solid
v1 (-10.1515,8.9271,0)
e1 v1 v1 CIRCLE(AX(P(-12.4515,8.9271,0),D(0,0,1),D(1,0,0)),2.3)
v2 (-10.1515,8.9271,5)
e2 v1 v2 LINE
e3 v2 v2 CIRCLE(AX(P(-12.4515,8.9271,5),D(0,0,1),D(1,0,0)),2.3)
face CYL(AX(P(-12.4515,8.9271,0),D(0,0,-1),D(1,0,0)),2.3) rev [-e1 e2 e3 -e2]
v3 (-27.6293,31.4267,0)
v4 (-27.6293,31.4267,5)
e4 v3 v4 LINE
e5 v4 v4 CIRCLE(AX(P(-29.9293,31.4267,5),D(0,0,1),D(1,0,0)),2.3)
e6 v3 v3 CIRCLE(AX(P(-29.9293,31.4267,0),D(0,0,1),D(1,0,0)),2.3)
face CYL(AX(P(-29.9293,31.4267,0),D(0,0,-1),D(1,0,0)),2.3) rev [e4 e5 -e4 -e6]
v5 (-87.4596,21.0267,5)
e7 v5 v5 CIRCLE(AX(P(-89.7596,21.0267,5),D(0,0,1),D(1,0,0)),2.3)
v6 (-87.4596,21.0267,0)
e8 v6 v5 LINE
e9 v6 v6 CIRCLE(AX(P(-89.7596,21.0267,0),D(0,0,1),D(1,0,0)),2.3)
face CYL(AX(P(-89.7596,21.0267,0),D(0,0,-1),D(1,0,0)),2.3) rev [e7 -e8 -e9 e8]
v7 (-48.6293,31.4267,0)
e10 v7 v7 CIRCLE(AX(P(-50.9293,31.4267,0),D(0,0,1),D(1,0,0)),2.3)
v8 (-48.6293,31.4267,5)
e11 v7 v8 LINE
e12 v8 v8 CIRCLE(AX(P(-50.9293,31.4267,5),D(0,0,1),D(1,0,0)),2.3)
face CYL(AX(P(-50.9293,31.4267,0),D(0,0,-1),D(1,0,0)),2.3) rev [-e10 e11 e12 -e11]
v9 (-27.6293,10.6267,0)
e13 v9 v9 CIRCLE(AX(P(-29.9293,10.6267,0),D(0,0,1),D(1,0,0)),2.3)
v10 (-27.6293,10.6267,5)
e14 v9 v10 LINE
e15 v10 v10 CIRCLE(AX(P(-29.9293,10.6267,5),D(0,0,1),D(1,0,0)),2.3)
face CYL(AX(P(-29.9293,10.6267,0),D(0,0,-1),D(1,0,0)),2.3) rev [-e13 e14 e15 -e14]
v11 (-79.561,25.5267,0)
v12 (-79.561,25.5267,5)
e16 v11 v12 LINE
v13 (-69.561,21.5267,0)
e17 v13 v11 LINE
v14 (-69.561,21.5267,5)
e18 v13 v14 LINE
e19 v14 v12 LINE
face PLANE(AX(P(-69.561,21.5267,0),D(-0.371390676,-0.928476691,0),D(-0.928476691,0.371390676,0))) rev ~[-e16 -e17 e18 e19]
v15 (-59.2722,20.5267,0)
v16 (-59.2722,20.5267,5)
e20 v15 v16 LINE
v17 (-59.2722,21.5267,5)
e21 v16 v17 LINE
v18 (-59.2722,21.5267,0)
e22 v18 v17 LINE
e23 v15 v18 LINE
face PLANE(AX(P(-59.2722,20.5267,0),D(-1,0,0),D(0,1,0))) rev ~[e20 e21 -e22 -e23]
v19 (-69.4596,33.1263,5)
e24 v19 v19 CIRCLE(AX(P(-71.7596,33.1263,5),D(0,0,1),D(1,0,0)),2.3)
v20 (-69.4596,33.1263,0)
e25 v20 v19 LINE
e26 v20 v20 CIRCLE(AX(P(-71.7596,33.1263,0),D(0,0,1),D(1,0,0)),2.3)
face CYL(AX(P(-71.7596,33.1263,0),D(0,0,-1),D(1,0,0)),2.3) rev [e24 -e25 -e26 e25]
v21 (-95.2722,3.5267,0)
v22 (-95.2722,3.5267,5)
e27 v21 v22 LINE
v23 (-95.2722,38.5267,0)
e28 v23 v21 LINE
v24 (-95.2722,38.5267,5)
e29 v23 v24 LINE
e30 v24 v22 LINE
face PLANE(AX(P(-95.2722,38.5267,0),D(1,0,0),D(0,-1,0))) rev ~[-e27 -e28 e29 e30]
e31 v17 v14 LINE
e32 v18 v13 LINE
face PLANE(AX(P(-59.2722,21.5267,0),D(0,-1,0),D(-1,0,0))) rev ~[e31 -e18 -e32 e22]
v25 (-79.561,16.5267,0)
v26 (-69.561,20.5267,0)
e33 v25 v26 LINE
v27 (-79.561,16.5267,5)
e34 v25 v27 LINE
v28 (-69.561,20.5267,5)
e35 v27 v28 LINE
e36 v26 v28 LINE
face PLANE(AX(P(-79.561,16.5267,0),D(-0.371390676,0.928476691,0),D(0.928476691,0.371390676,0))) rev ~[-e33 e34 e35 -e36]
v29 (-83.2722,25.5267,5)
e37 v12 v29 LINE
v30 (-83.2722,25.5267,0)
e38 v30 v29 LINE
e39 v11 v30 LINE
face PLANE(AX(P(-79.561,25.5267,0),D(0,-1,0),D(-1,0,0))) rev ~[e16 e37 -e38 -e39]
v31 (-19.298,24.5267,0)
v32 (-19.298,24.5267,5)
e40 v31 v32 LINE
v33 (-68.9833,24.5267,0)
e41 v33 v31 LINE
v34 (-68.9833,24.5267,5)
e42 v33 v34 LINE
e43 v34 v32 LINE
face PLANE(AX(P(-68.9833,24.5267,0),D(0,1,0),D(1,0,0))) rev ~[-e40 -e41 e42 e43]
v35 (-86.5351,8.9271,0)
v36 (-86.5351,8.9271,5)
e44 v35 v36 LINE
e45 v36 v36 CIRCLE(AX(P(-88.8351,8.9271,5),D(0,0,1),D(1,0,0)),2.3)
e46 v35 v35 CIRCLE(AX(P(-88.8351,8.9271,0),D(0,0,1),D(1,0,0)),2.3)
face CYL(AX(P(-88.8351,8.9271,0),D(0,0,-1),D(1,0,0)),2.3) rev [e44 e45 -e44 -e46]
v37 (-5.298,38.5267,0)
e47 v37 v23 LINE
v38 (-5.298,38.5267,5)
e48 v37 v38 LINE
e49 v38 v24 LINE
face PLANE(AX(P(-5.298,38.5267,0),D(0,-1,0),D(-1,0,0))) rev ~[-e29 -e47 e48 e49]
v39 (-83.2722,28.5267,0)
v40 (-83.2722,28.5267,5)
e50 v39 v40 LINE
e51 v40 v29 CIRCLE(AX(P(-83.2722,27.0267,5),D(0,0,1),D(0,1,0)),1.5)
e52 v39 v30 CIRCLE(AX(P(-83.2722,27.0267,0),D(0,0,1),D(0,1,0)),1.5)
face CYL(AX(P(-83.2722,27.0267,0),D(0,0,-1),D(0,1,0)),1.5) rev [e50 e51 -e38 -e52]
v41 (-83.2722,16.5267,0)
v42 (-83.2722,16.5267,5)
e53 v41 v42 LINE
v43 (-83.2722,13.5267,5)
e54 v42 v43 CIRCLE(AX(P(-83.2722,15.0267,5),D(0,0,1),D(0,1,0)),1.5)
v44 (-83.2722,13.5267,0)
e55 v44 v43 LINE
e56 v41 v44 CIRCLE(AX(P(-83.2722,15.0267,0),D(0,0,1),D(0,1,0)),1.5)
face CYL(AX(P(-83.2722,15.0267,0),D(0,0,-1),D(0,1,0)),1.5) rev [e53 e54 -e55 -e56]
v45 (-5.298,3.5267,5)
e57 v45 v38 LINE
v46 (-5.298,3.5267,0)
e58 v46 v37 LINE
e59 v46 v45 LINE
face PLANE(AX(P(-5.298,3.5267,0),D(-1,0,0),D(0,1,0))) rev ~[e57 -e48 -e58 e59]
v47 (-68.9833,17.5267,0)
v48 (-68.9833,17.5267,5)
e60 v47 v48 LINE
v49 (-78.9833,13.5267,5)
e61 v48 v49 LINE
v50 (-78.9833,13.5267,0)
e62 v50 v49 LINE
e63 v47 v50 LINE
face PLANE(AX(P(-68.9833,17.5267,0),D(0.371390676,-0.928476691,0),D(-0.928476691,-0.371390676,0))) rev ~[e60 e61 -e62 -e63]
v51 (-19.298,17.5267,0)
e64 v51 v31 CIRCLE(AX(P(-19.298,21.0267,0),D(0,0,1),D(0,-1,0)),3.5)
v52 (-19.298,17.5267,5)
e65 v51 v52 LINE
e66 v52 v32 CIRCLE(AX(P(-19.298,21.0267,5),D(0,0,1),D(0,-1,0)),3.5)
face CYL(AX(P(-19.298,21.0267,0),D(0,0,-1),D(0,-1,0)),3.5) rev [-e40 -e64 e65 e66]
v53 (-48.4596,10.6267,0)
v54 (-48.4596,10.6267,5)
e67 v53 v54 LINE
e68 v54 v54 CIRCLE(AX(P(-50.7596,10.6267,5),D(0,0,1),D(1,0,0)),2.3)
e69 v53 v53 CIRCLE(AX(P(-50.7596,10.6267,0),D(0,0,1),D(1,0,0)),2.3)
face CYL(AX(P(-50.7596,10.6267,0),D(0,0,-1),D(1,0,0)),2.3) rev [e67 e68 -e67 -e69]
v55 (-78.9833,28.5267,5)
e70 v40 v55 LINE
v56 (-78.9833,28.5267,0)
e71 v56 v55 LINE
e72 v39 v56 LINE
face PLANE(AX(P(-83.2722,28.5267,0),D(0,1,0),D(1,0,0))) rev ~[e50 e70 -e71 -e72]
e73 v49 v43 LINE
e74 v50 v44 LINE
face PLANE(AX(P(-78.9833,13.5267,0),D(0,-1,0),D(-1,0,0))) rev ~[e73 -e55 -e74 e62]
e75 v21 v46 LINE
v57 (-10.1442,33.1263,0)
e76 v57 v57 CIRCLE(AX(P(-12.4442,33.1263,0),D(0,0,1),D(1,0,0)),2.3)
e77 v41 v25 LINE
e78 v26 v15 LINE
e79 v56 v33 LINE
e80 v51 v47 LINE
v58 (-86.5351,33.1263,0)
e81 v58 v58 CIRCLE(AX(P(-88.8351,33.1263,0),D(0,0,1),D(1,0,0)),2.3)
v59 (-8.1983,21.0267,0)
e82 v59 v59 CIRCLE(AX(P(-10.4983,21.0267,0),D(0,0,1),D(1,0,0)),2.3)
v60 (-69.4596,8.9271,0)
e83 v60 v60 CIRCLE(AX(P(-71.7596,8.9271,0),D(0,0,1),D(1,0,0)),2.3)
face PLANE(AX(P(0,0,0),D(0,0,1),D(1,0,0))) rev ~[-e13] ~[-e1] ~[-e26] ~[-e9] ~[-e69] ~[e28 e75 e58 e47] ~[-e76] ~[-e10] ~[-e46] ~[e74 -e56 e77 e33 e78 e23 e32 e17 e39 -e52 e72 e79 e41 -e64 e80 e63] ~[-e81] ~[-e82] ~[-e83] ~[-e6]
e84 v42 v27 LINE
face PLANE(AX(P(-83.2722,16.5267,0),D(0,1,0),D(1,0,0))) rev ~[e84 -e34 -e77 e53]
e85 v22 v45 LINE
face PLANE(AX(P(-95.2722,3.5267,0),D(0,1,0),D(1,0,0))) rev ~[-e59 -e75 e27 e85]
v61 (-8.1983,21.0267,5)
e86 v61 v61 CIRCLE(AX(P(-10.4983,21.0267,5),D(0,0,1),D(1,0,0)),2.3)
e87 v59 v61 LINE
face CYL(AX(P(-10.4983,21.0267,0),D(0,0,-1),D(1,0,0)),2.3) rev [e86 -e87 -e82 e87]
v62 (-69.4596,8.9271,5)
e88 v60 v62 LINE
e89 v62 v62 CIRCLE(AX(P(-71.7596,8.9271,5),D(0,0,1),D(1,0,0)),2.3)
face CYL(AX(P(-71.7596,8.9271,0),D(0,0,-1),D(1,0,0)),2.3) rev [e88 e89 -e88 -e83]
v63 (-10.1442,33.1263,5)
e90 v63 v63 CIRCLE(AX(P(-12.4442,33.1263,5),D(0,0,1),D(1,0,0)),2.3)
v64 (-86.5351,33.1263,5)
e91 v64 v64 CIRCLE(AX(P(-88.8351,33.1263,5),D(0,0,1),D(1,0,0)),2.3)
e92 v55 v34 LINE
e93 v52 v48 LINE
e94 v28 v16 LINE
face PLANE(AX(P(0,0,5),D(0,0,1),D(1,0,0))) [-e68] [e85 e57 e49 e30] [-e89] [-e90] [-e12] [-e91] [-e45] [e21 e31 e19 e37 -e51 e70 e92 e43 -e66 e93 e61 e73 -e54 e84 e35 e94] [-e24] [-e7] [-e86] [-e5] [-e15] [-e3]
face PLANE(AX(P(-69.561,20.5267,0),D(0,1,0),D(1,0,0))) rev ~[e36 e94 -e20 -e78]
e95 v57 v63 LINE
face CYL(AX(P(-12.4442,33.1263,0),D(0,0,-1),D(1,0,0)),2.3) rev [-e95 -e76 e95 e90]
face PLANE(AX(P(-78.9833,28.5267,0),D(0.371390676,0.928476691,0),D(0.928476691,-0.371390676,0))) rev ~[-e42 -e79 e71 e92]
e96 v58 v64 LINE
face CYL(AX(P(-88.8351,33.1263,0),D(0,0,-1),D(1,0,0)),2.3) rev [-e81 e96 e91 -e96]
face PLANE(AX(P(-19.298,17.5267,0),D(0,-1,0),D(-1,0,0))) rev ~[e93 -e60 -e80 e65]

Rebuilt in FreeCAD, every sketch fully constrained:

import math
import FreeCAD as App
import Part
import Sketcher

V = App.Vector
Q = App.Units.Quantity

doc = App.newDocument("Part")
body = doc.addObject("PartDesign::Body", "Body")

sketch1 = body.newObject("Sketcher::SketchObject", "Sketch")
sketch1.AttachmentSupport = (doc.getObject("XY_Plane"), [""])
sketch1.MapMode = "FlatFace"
sketch1.addGeometry(Part.LineSegment(V(-5.298, 3.5267, 0), V(-5.298, 38.5267, 0)), False)
sketch1.addGeometry(Part.LineSegment(V(-5.298, 38.5267, 0), V(-95.2722, 38.5267, 0)), False)
sketch1.addGeometry(Part.LineSegment(V(-95.2722, 38.5267, 0), V(-95.2722, 3.5267, 0)), False)
sketch1.addGeometry(Part.LineSegment(V(-95.2722, 3.5267, 0), V(-5.298, 3.5267, 0)), False)
sketch1.addGeometry(Part.Circle(V(-88.8351, 8.9271, 0), V(0, 0, 1), 2.3), False)
sketch1.addGeometry(Part.Circle(V(-71.7596, 8.9271, 0), V(0, 0, 1), 2.3), False)
sketch1.addGeometry(Part.Circle(V(-50.7596, 10.6267, 0), V(0, 0, 1), 2.3), False)
sketch1.addGeometry(Part.Circle(V(-29.9293, 10.6267, 0), V(0, 0, 1), 2.3), False)
sketch1.addGeometry(Part.Circle(V(-12.4515, 8.9271, 0), V(0, 0, 1), 2.3), False)
sketch1.addGeometry(Part.Circle(V(-89.7596, 21.0267, 0), V(0, 0, 1), 2.3), False)
sketch1.addGeometry(Part.Circle(V(-88.8351, 33.1263, 0), V(0, 0, 1), 2.3), False)
sketch1.addGeometry(Part.Circle(V(-71.7596, 33.1263, 0), V(0, 0, 1), 2.3), False)
sketch1.addGeometry(Part.Circle(V(-50.9293, 31.4267, 0), V(0, 0, 1), 2.3), False)
sketch1.addGeometry(Part.LineSegment(V(-83.2722, 28.5267, 0), V(-78.9833, 28.5267, 0)), False)
sketch1.addGeometry(Part.LineSegment(V(-78.9833, 28.5267, 0), V(-68.9833, 24.5267, 0)), False)
sketch1.addGeometry(Part.LineSegment(V(-68.9833, 24.5267, 0), V(-19.298, 24.5267, 0)), False)
sketch1.addGeometry(Part.ArcOfCircle(Part.Circle(V(-19.298, 21.0267, 0), V(0, 0, 1), 3.5), math.radians(-90), math.radians(90)), False)
sketch1.addGeometry(Part.LineSegment(V(-19.298, 17.5267, 0), V(-68.9833, 17.5267, 0)), False)
sketch1.addGeometry(Part.LineSegment(V(-68.9833, 17.5267, 0), V(-78.9833, 13.5267, 0)), False)
sketch1.addGeometry(Part.LineSegment(V(-78.9833, 13.5267, 0), V(-83.2722, 13.5267, 0)), False)
sketch1.addGeometry(Part.ArcOfCircle(Part.Circle(V(-83.2722, 15.0267, 0), V(0, 0, 1), 1.5), math.radians(90), math.radians(270)), False)
sketch1.addGeometry(Part.LineSegment(V(-83.2722, 16.5267, 0), V(-79.561, 16.5267, 0)), False)
sketch1.addGeometry(Part.LineSegment(V(-79.561, 16.5267, 0), V(-69.561, 20.5267, 0)), False)
sketch1.addGeometry(Part.LineSegment(V(-69.561, 20.5267, 0), V(-59.2722, 20.5267, 0)), False)
sketch1.addGeometry(Part.LineSegment(V(-59.2722, 20.5267, 0), V(-59.2722, 21.5267, 0)), False)
sketch1.addGeometry(Part.LineSegment(V(-59.2722, 21.5267, 0), V(-69.561, 21.5267, 0)), False)
sketch1.addGeometry(Part.LineSegment(V(-69.561, 21.5267, 0), V(-79.561, 25.5267, 0)), False)
sketch1.addGeometry(Part.LineSegment(V(-79.561, 25.5267, 0), V(-83.2722, 25.5267, 0)), False)
sketch1.addGeometry(Part.ArcOfCircle(Part.Circle(V(-83.2722, 27.0267, 0), V(0, 0, 1), 1.5), math.radians(90), math.radians(270)), False)
sketch1.addGeometry(Part.Circle(V(-10.4983, 21.0267, 0), V(0, 0, 1), 2.3), False)
sketch1.addGeometry(Part.Circle(V(-29.9293, 31.4267, 0), V(0, 0, 1), 2.3), False)
sketch1.addGeometry(Part.Circle(V(-12.4442, 33.1263, 0), V(0, 0, 1), 2.3), False)
sketch1.addConstraint(Sketcher.Constraint("Coincident", 0, 2, 1, 1))
sketch1.addConstraint(Sketcher.Constraint("Coincident", 1, 2, 2, 1))
sketch1.addConstraint(Sketcher.Constraint("Coincident", 2, 2, 3, 1))
sketch1.addConstraint(Sketcher.Constraint("Coincident", 3, 2, 0, 1))
sketch1.addConstraint(Sketcher.Constraint("Coincident", 13, 2, 14, 1))
sketch1.addConstraint(Sketcher.Constraint("Coincident", 14, 2, 15, 1))
sketch1.addConstraint(Sketcher.Constraint("Tangent", 15, 2, 16, 2))
sketch1.addConstraint(Sketcher.Constraint("Tangent", 16, 1, 17, 1))
sketch1.addConstraint(Sketcher.Constraint("Coincident", 17, 2, 18, 1))
sketch1.addConstraint(Sketcher.Constraint("Coincident", 18, 2, 19, 1))
sketch1.addConstraint(Sketcher.Constraint("Tangent", 19, 2, 20, 2))
sketch1.addConstraint(Sketcher.Constraint("Tangent", 20, 1, 21, 1))
sketch1.addConstraint(Sketcher.Constraint("Coincident", 21, 2, 22, 1))
sketch1.addConstraint(Sketcher.Constraint("Coincident", 22, 2, 23, 1))
sketch1.addConstraint(Sketcher.Constraint("Coincident", 23, 2, 24, 1))
sketch1.addConstraint(Sketcher.Constraint("Coincident", 24, 2, 25, 1))
sketch1.addConstraint(Sketcher.Constraint("Coincident", 25, 2, 26, 1))
sketch1.addConstraint(Sketcher.Constraint("Coincident", 26, 2, 27, 1))
sketch1.addConstraint(Sketcher.Constraint("Tangent", 27, 2, 28, 2))
sketch1.addConstraint(Sketcher.Constraint("Tangent", 28, 1, 13, 1))
sketch1.addConstraint(Sketcher.Constraint("Vertical", 0))
sketch1.addConstraint(Sketcher.Constraint("Horizontal", 1))
sketch1.addConstraint(Sketcher.Constraint("Vertical", 2))
sketch1.addConstraint(Sketcher.Constraint("Horizontal", 3))
sketch1.addConstraint(Sketcher.Constraint("Horizontal", 13))
sketch1.addConstraint(Sketcher.Constraint("Horizontal", 15))
sketch1.addConstraint(Sketcher.Constraint("Horizontal", 17))
sketch1.addConstraint(Sketcher.Constraint("Horizontal", 19))
sketch1.addConstraint(Sketcher.Constraint("Horizontal", 21))
sketch1.addConstraint(Sketcher.Constraint("Horizontal", 23))
sketch1.addConstraint(Sketcher.Constraint("Vertical", 24))
sketch1.addConstraint(Sketcher.Constraint("Horizontal", 25))
sketch1.addConstraint(Sketcher.Constraint("Horizontal", 27))
sketch1.addConstraint(Sketcher.Constraint("Equal", 4, 5))
sketch1.addConstraint(Sketcher.Constraint("Equal", 5, 6))
sketch1.addConstraint(Sketcher.Constraint("Equal", 6, 7))
sketch1.addConstraint(Sketcher.Constraint("Equal", 7, 8))
sketch1.addConstraint(Sketcher.Constraint("Equal", 8, 9))
sketch1.addConstraint(Sketcher.Constraint("Equal", 9, 10))
sketch1.addConstraint(Sketcher.Constraint("Equal", 10, 11))
sketch1.addConstraint(Sketcher.Constraint("Equal", 11, 12))
sketch1.addConstraint(Sketcher.Constraint("Equal", 20, 28))
sketch1.addConstraint(Sketcher.Constraint("Equal", 12, 29))
sketch1.addConstraint(Sketcher.Constraint("Equal", 29, 30))
sketch1.addConstraint(Sketcher.Constraint("Equal", 30, 31))
sketch1.addConstraint(Sketcher.Constraint("Parallel", 18, 22))
sketch1.addConstraint(Sketcher.Constraint("Parallel", 14, 26))
sketch1.addConstraint(Sketcher.Constraint("Horizontal", 4, 3, 5, 3))
sketch1.addConstraint(Sketcher.Constraint("Horizontal", 6, 3, 7, 3))
sketch1.addConstraint(Sketcher.Constraint("Horizontal", 5, 3, 8, 3))
sketch1.addConstraint(Sketcher.Constraint("Horizontal", 10, 3, 11, 3))
sketch1.addConstraint(Sketcher.Constraint("Horizontal", 9, 3, 16, 3))
sketch1.addConstraint(Sketcher.Constraint("Horizontal", 16, 3, 29, 3))
sketch1.addConstraint(Sketcher.Constraint("Horizontal", 12, 3, 30, 3))
sketch1.addConstraint(Sketcher.Constraint("Horizontal", 11, 3, 31, 3))
sketch1.addConstraint(Sketcher.Constraint("Vertical", 4, 3, 10, 3))
sketch1.addConstraint(Sketcher.Constraint("Vertical", 5, 3, 11, 3))
sketch1.addConstraint(Sketcher.Constraint("Vertical", 20, 3, 28, 3))
sketch1.addConstraint(Sketcher.Constraint("Vertical", 7, 3, 30, 3))
sketch1.addConstraint(Sketcher.Constraint("Vertical", 14, 2, 17, 2))
sketch1.addConstraint(Sketcher.Constraint("Vertical", 13, 2, 18, 2))
sketch1.addConstraint(Sketcher.Constraint("Vertical", 22, 2, 25, 2))
sketch1.addConstraint(Sketcher.Constraint("Vertical", 21, 2, 26, 2))
sketch1.addConstraint(Sketcher.Constraint("Equal", 14, 18))
sketch1.addConstraint(Sketcher.Constraint("Equal", 18, 22))
sketch1.addConstraint(Sketcher.Constraint("Diameter", 4, Q("4.6 mm")))
sketch1.addConstraint(Sketcher.Constraint("Radius", 16, Q("3.5 mm")))
sketch1.addConstraint(Sketcher.Constraint("Radius", 20, Q("1.5 mm")))
sketch1.addConstraint(Sketcher.Constraint("DistanceY", 0, 1, 0, 2, Q("35 mm")))
sketch1.addConstraint(Sketcher.Constraint("DistanceX", 5, 3, 6, 3, Q("21 mm")))
sketch1.addConstraint(Sketcher.Constraint("DistanceX", 9, 3, 5, 3, Q("18 mm")))
sketch1.addConstraint(Sketcher.Constraint("DistanceX", 12, 3, 7, 3, Q("21 mm")))
sketch1.addConstraint(Sketcher.Constraint("DistanceY", 20, 3, 9, 3, Q("6 mm")))
sketch1.addConstraint(Sketcher.Constraint("DistanceX", 16, 3, 0, 2, Q("14 mm")))
sketch1.addConstraint(Sketcher.Constraint("DistanceX", 1, 2, 28, 3, Q("12 mm")))
sketch1.addConstraint(Sketcher.Constraint("DistanceX", 13, 2, 14, 2, Q("10 mm")))
sketch1.addConstraint(Sketcher.Constraint("DistanceY", 6, 3, 9, 3, Q("10.4 mm")))
sketch1.addConstraint(Sketcher.Constraint("DistanceY", 6, 3, 12, 3, Q("20.8 mm")))
sketch1.addConstraint(Sketcher.Constraint("DistanceY", 29, 3, 0, 2, Q("17.5 mm")))
sketch1.addConstraint(Sketcher.Constraint("DistanceX", 13, 1, 13, 2, Q("4.289 mm")))
sketch1.addConstraint(Sketcher.Constraint("DistanceX", 1, 2, 1, 1, Q("89.9742 mm")))
sketch1.addConstraint(Sketcher.Constraint("DistanceX", 21, 1, 21, 2, Q("3.7112 mm")))
sketch1.addConstraint(Sketcher.Constraint("DistanceX", 23, 1, 23, 2, Q("10.2888 mm")))
sketch1.addConstraint(Sketcher.Constraint("DistanceX", 4, 3, -1, 1, Q("88.835 mm")))
sketch1.addConstraint(Sketcher.Constraint("DistanceY", -1, 1, 4, 3, Q("8.927 mm")))
sketch1.addConstraint(Sketcher.Constraint("DistanceX", 16, 3, -1, 1, Q("19.298 mm")))
sketch1.addConstraint(Sketcher.Constraint("DistanceX", 6, 3, 8, 3, Q("38.308 mm")))
sketch1.addConstraint(Sketcher.Constraint("DistanceX", 7, 3, 29, 3, Q("19.431 mm")))
sketch1.addConstraint(Sketcher.Constraint("DistanceX", 31, 3, 29, 3, Q("1.946 mm")))
sketch1.addConstraint(Sketcher.Constraint("DistanceX", 23, 2, 12, 3, Q("8.343 mm")))
sketch1.addConstraint(Sketcher.Constraint("DistanceX", 5, 3, -1, 1, Q("71.7596 mm")))
sketch1.addConstraint(Sketcher.Constraint("DistanceY", -1, 1, 6, 3, Q("10.6267 mm")))
sketch1.addConstraint(Sketcher.Constraint("DistanceY", -1, 1, 10, 3, Q("33.1263 mm")))
pad1 = body.newObject("PartDesign::Pad", "Pad")
pad1.Profile = sketch1
pad1.Length = 5

doc.recompute()
